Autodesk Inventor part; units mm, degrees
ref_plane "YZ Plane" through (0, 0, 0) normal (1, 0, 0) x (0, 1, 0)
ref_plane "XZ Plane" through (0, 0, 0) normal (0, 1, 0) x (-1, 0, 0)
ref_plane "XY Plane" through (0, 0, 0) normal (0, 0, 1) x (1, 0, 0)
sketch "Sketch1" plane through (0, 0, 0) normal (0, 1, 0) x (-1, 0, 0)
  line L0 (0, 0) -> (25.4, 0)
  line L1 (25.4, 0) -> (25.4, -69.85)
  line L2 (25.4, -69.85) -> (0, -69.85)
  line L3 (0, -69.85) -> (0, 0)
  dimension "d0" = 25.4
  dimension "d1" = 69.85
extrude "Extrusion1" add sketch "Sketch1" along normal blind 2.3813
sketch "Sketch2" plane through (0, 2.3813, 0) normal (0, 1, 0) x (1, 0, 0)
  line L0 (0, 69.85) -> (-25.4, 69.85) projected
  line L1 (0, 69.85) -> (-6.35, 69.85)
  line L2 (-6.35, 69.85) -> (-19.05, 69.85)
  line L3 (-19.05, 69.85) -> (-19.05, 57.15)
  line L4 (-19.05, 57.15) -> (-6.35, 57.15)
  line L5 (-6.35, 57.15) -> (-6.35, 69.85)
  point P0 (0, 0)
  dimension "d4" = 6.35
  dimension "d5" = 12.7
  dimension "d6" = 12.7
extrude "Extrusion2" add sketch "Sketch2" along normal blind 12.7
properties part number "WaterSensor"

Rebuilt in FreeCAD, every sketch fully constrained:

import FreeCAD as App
import Part
import Sketcher

V = App.Vector
Q = App.Units.Quantity


def add_polygon(sketch, points):
    """Adds a closed chain of lines whose ends are joined by coincident constraints."""
    first, n = sketch.GeometryCount, len(points)
    for a, b in zip(points, points[1:] + points[:1]):
        sketch.addGeometry(Part.LineSegment(App.Vector(*a, 0), App.Vector(*b, 0)), False)
    for i in range(n):
        sketch.addConstraint(Sketcher.Constraint("Coincident", first + i, 2, first + (i + 1) % n, 1))

doc = App.newDocument("Part")
params = doc.addObject("Spreadsheet::Sheet", "Params")
for row, (alias, value) in enumerate([
    ("sketch1_width", "1 in"),
    ("sketch1_height", "2.75 in"),
    ("pad1_length", "0.093752 in"),
    ("sketch2_width", "0.5 in"),
    ("pad2_length", "0.5 in"),
], start=1):
    params.set(f"A{row}", alias)
    params.set(f"B{row}", "=" + value)
    params.setAlias(f"B{row}", alias)

body = doc.addObject("PartDesign::Body", "Body")

sketch1 = body.newObject("Sketcher::SketchObject", "Sketch")
sketch1.AttachmentSupport = (doc.getObject("XZ_Plane"), [""])
sketch1.MapMode = "FlatFace"
add_polygon(sketch1, [(-25.4, 0), (0, 0), (0, -69.85), (-25.4, -69.85)])
sketch1.addConstraint([
    Sketcher.Constraint("Horizontal", 0),
    Sketcher.Constraint("Vertical", 1),
    Sketcher.Constraint("Horizontal", 2),
    Sketcher.Constraint("Vertical", 3),
    Sketcher.Constraint("Coincident", 0, 2, -1, 1),
    Sketcher.Constraint("DistanceX", 0, 1, 0, 2, Q("1 in")),
    Sketcher.Constraint("DistanceY", 1, 2, 1, 1, Q("2.75 in")),
])
sketch1.setExpression("Constraints[9]", "Params.sketch1_width")
sketch1.setExpression("Constraints[10]", "Params.sketch1_height")
pad1 = body.newObject("PartDesign::Pad", "Pad")
pad1.Profile = sketch1
pad1.setExpression("Length", "Params.pad1_length")
pad1.Reversed = True

sketch2 = body.newObject("Sketcher::SketchObject", "Sketch001")
sketch2.AttachmentSupport = (doc.getObject("XZ_Plane"), [""])
sketch2.MapMode = "FlatFace"
sketch2.AttachmentOffset = App.Placement(V(0, 0, -0.093752 * 25.4), App.Rotation())
add_polygon(sketch2, [(-6.35, -57.15), (-6.35, -69.85), (-19.05, -69.85), (-19.05, -57.15)])
sketch2.addConstraint([
    Sketcher.Constraint("Vertical", 0),
    Sketcher.Constraint("Horizontal", 1),
    Sketcher.Constraint("Vertical", 2),
    Sketcher.Constraint("Horizontal", 3),
    Sketcher.Constraint("Equal", 3, 0),
    Sketcher.Constraint("DistanceX", 1, 2, 1, 1, Q("0.5 in")),
    Sketcher.Constraint("DistanceX", 0, 2, -1, 1, Q("0.25 in")),
    Sketcher.Constraint("DistanceY", 0, 2, -1, 1, Q("2.75 in")),
])
sketch2.setExpression("Constraints[9]", "Params.sketch2_width")
pad2 = body.newObject("PartDesign::Pad", "Pad001")
pad2.Profile = sketch2
pad2.setExpression("Length", "Params.pad2_length")
pad2.Reversed = True

doc.recompute()
